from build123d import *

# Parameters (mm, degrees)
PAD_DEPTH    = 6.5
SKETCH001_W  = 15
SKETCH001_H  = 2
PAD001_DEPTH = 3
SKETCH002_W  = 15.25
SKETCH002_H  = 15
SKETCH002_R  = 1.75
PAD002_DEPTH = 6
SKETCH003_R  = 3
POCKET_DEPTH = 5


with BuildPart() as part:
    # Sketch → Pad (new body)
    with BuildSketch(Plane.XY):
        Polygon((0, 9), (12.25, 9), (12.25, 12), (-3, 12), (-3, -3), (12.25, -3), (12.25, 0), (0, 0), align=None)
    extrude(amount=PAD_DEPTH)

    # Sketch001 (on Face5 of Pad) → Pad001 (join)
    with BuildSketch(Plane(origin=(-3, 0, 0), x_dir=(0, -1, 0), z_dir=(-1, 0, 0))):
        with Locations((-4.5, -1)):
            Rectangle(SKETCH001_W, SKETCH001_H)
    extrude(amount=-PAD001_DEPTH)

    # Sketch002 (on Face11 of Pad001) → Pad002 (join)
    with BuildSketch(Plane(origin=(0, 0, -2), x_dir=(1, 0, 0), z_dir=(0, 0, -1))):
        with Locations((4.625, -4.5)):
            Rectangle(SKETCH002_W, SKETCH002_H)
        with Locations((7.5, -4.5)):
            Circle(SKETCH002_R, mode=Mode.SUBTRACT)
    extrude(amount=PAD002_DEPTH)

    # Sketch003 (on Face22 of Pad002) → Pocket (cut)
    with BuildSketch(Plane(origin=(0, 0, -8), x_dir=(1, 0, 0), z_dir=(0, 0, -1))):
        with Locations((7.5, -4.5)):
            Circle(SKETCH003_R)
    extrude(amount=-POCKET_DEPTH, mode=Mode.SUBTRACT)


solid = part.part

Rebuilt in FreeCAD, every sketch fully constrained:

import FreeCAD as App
import Part
import Sketcher

V = App.Vector

doc = App.newDocument("Part")
body = doc.addObject("PartDesign::Body", "Body")

# Sketch on XY plane
sketch1 = doc.addObject("Sketcher::SketchObject", "Sketch")
body.addObject(sketch1)
sketch1.AttachmentSupport = (doc.XY_Plane, [""])
sketch1.MapMode = "FlatFace"
sketch1.addGeometry([
    Part.LineSegment(V(0, 9, 0), V(12.2, 9, 0)),  # 0
    Part.LineSegment(V(12.2, 9, 0), V(12.2, 12, 0)),  # 1
    Part.LineSegment(V(12.2, 12, 0), V(-3, 12, 0)),  # 2
    Part.LineSegment(V(-3, 12, 0), V(-3, -3, 0)),  # 3
    Part.LineSegment(V(-3, -3, 0), V(12.2, -3, 0)),  # 4
    Part.LineSegment(V(12.2, -3, 0), V(12.2, 0, 0)),  # 5
    Part.LineSegment(V(12.2, 0, 0), V(0, 0, 0)),  # 6
    Part.LineSegment(V(0, 0, 0), V(0, 9, 0)),  # 7
], False)
sketch1.addConstraint([
    Sketcher.Constraint("Coincident", 0, 2, 1, 1),
    Sketcher.Constraint("Coincident", 1, 2, 2, 1),
    Sketcher.Constraint("Coincident", 2, 2, 3, 1),
    Sketcher.Constraint("Coincident", 3, 2, 4, 1),
    Sketcher.Constraint("Coincident", 4, 2, 5, 1),
    Sketcher.Constraint("Coincident", 5, 2, 6, 1),
    Sketcher.Constraint("Coincident", 6, 2, 7, 1),
    Sketcher.Constraint("Coincident", 7, 2, 0, 1),
    Sketcher.Constraint("Horizontal", 0),
    Sketcher.Constraint("Vertical", 1),
    Sketcher.Constraint("Horizontal", 2),
    Sketcher.Constraint("Vertical", 3),
    Sketcher.Constraint("Horizontal", 4),
    Sketcher.Constraint("Vertical", 5),
    Sketcher.Constraint("Horizontal", 6),
    Sketcher.Constraint("Vertical", 7),
    Sketcher.Constraint("Coincident", 6, 2, -1, 1),
    Sketcher.Constraint("Vertical", 1, 2, 4, 2),
    Sketcher.Constraint("Equal", 1, 5),
    Sketcher.Constraint("DistanceY", 1, 1, 1, 2, 3.0),
    Sketcher.Constraint("DistanceY", 3, 2, 3, 1, 15.0),
    Sketcher.Constraint("DistanceX", 2, 2, -1, 1, 3.0),
    Sketcher.Constraint("DistanceX", 0, 1, 0, 2, 12.25),
])
pad1 = doc.addObject("PartDesign::Pad", "Pad")
body.addObject(pad1)
pad1.Profile = sketch1
pad1.Length = 6.5

# Sketch on YZ plane
sketch2 = doc.addObject("Sketcher::SketchObject", "Sketch001")
body.addObject(sketch2)
sketch2.AttachmentSupport = (doc.YZ_Plane, [""])
sketch2.MapMode = "FlatFace"
sketch2.AttachmentOffset = App.Placement(V(0, 0, -3), App.Rotation())
sketch2.addGeometry([
    Part.LineSegment(V(12, 0, 0), V(12, -2, 0)),
    Part.LineSegment(V(12, -2, 0), V(-3, -2, 0)),
    Part.LineSegment(V(-3, -2, 0), V(-3, 0, 0)),
    Part.LineSegment(V(-3, 0, 0), V(12, 0, 0)),
], False)
sketch2.addConstraint([
    Sketcher.Constraint("Coincident", 0, 2, 1, 1),
    Sketcher.Constraint("Coincident", 1, 2, 2, 1),
    Sketcher.Constraint("Coincident", 2, 2, 3, 1),
    Sketcher.Constraint("Coincident", 3, 2, 0, 1),
    Sketcher.Constraint("Vertical", 0),
    Sketcher.Constraint("Horizontal", 1),
    Sketcher.Constraint("Vertical", 2),
    Sketcher.Constraint("Horizontal", 3),
    Sketcher.Constraint("PointOnObject", 2, 2, -1),
    Sketcher.Constraint("DistanceX", 1, 2, 1, 1, 15.0),
    Sketcher.Constraint("DistanceY", 0, 2, 0, 1, 2.0),
    Sketcher.Constraint("DistanceX", -1, 1, 0, 2, 12.0),
])
pad2 = doc.addObject("PartDesign::Pad", "Pad001")
body.addObject(pad2)
pad2.Profile = sketch2
pad2.Length = 3

# Sketch on XY plane
sketch3 = doc.addObject("Sketcher::SketchObject", "Sketch002")
body.addObject(sketch3)
sketch3.AttachmentSupport = (doc.XY_Plane, [""])
sketch3.MapMode = "FlatFace"
sketch3.AttachmentOffset = App.Placement(V(0, 0, -2), App.Rotation())
sketch3.addGeometry([
    Part.LineSegment(V(-3, -3, 0), V(-3, 12, 0)),  # 0
    Part.LineSegment(V(-3, 12, 0), V(12.2, 12, 0)),  # 1
    Part.LineSegment(V(12.2, 12, 0), V(12.2, -3, 0)),  # 2
    Part.LineSegment(V(12.2, -3, 0), V(-3, -3, 0)),  # 3
    Part.Circle(V(7.5, 4.5, 0), V(0, 0, 1), 1.8),  # 4
], False)
sketch3.addConstraint([
    Sketcher.Constraint("Coincident", 0, 2, 1, 1),
    Sketcher.Constraint("Coincident", 1, 2, 2, 1),
    Sketcher.Constraint("Coincident", 2, 2, 3, 1),
    Sketcher.Constraint("Coincident", 3, 2, 0, 1),
    Sketcher.Constraint("Vertical", 0),
    Sketcher.Constraint("Horizontal", 1),
    Sketcher.Constraint("Vertical", 2),
    Sketcher.Constraint("Horizontal", 3),
    Sketcher.Constraint("Diameter", 4, 3.5),
    Sketcher.Constraint("DistanceY", 0, 1, 0, 2, 15.0),
    Sketcher.Constraint("DistanceX", 0, 2, -1, 1, 3.0),
    Sketcher.Constraint("DistanceY", -1, 1, 0, 2, 12.0),
    Sketcher.Constraint("DistanceX", 1, 1, 1, 2, 15.25),
    Sketcher.Constraint("DistanceX", -1, 1, 4, 3, 7.5),
    Sketcher.Constraint("DistanceY", -1, 1, 4, 3, 4.5),
])
pad3 = doc.addObject("PartDesign::Pad", "Pad002")
body.addObject(pad3)
pad3.Profile = sketch3
pad3.Length = 6
pad3.Reversed = True

# Sketch on XY plane
sketch4 = doc.addObject("Sketcher::SketchObject", "Sketch003")
body.addObject(sketch4)
sketch4.AttachmentSupport = (doc.XY_Plane, [""])
sketch4.MapMode = "FlatFace"
sketch4.AttachmentOffset = App.Placement(V(0, 0, -8), App.Rotation())
sketch4.addGeometry(Part.Circle(V(7.5, 4.5, 0), V(0, 0, 1), 3), False)
sketch4.addConstraint([
    Sketcher.Constraint("Diameter", 0, 6.0),
    Sketcher.Constraint("DistanceX", -1, 1, 0, 3, 7.5),
    Sketcher.Constraint("DistanceY", -1, 1, 0, 3, 4.5),
])
pocket1 = doc.addObject("PartDesign::Pocket", "Pocket")
body.addObject(pocket1)
pocket1.Profile = sketch4
pocket1.Length = 5
pocket1.Reversed = True

doc.recompute()
